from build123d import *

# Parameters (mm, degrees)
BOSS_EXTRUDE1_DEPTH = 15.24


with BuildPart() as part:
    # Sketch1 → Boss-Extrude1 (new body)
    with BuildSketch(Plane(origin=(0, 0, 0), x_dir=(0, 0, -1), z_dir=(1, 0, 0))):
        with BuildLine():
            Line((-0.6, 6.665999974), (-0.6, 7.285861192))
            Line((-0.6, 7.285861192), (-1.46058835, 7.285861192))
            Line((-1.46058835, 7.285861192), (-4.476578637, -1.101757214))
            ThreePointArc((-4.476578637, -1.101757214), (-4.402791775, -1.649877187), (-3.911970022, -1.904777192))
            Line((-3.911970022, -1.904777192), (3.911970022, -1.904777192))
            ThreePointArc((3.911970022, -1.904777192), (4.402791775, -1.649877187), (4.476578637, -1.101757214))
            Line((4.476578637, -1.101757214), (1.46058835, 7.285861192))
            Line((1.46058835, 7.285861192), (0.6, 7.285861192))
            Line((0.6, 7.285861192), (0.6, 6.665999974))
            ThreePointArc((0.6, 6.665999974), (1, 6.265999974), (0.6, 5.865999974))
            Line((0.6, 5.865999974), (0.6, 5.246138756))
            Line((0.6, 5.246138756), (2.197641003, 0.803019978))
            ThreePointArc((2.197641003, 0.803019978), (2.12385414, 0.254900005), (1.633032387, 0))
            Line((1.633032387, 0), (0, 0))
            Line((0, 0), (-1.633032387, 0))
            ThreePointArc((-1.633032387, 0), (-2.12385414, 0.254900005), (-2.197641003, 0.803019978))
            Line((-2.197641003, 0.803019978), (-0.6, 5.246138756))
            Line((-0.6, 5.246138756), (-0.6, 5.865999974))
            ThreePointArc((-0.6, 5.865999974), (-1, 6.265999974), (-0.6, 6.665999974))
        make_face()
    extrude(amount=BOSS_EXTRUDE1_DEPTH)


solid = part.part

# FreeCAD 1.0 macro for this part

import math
import FreeCAD as App
import Part
import Sketcher
from FreeCAD import Vector

doc = App.newDocument("Part")
body = doc.addObject("PartDesign::Body", "Body")

sketch1 = body.newObject("Sketcher::SketchObject", "Sketch")
sketch1.AttachmentSupport = (doc.getObject("YZ_Plane"), [""])
sketch1.MapMode = "FlatFace"
sketch1.addGeometry(Part.LineSegment(Vector(6.67, 0.6, 0), Vector(7.29, 0.6, 0)), False)
sketch1.addGeometry(Part.LineSegment(Vector(7.29, 0.6, 0), Vector(7.29, 1.46, 0)), False)
sketch1.addGeometry(Part.LineSegment(Vector(7.29, 1.46, 0), Vector(-1.1, 4.48, 0)), False)
sketch1.addGeometry(Part.ArcOfCircle(Part.Circle(Vector(-1.3, 3.91, 0), Vector(0, 0, 1), 0.6), math.radians(70), math.radians(180)), False)
sketch1.addGeometry(Part.LineSegment(Vector(-1.9, 3.91, 0), Vector(-1.9, -3.91, 0)), False)
sketch1.addGeometry(Part.ArcOfCircle(Part.Circle(Vector(-1.3, -3.91, 0), Vector(0, 0, 1), 0.6), math.radians(180), math.radians(290)), False)
sketch1.addGeometry(Part.LineSegment(Vector(-1.1, -4.48, 0), Vector(7.29, -1.46, 0)), False)
sketch1.addGeometry(Part.LineSegment(Vector(7.29, -1.46, 0), Vector(7.29, -0.6, 0)), False)
sketch1.addGeometry(Part.LineSegment(Vector(7.29, -0.6, 0), Vector(6.67, -0.6, 0)), False)
sketch1.addGeometry(Part.ArcOfCircle(Part.Circle(Vector(6.27, -0.6, 0), Vector(0, 0, 1), 0.4), math.radians(180), math.radians(360)), False)
sketch1.addGeometry(Part.LineSegment(Vector(5.87, -0.6, 0), Vector(5.25, -0.6, 0)), False)
sketch1.addGeometry(Part.LineSegment(Vector(5.25, -0.6, 0), Vector(0.8, -2.2, 0)), False)
sketch1.addGeometry(Part.ArcOfCircle(Part.Circle(Vector(0.6, -1.63, 0), Vector(0, 0, 1), 0.6), math.radians(-180), math.radians(-70)), False)
sketch1.addGeometry(Part.LineSegment(Vector(0, -1.63, 0), Vector(0, 1.63, 0)), False)
sketch1.addGeometry(Part.ArcOfCircle(Part.Circle(Vector(0.6, 1.63, 0), Vector(0, 0, 1), 0.6), math.radians(70), math.radians(180)), False)
sketch1.addGeometry(Part.LineSegment(Vector(0.8, 2.2, 0), Vector(5.25, 0.6, 0)), False)
sketch1.addGeometry(Part.LineSegment(Vector(5.25, 0.6, 0), Vector(5.87, 0.6, 0)), False)
sketch1.addGeometry(Part.ArcOfCircle(Part.Circle(Vector(6.27, 0.6, 0), Vector(0, 0, 1), 0.4), math.radians(0), math.radians(180)), False)
sketch1.addConstraint(Sketcher.Constraint("Coincident", 0, 2, 1, 1))
sketch1.addConstraint(Sketcher.Constraint("Coincident", 1, 2, 2, 1))
sketch1.addConstraint(Sketcher.Constraint("Tangent", 2, 2, 3, 1))
sketch1.addConstraint(Sketcher.Constraint("Tangent", 3, 2, 4, 1))
sketch1.addConstraint(Sketcher.Constraint("Tangent", 4, 2, 5, 1))
sketch1.addConstraint(Sketcher.Constraint("Tangent", 5, 2, 6, 1))
sketch1.addConstraint(Sketcher.Constraint("Coincident", 6, 2, 7, 1))
sketch1.addConstraint(Sketcher.Constraint("Coincident", 7, 2, 8, 1))
sketch1.addConstraint(Sketcher.Constraint("Coincident", 8, 2, 9, 2))
sketch1.addConstraint(Sketcher.Constraint("Coincident", 9, 1, 10, 1))
sketch1.addConstraint(Sketcher.Constraint("Coincident", 10, 2, 11, 1))
sketch1.addConstraint(Sketcher.Constraint("Tangent", 11, 2, 12, 2))
sketch1.addConstraint(Sketcher.Constraint("Tangent", 12, 1, 13, 1))
sketch1.addConstraint(Sketcher.Constraint("Tangent", 13, 2, 14, 2))
sketch1.addConstraint(Sketcher.Constraint("Tangent", 14, 1, 15, 1))
sketch1.addConstraint(Sketcher.Constraint("Coincident", 15, 2, 16, 1))
sketch1.addConstraint(Sketcher.Constraint("Coincident", 16, 2, 17, 2))
sketch1.addConstraint(Sketcher.Constraint("Coincident", 17, 1, 0, 1))
sketch1.addConstraint(Sketcher.Constraint("Horizontal", 0))
sketch1.addConstraint(Sketcher.Constraint("Vertical", 1))
sketch1.addConstraint(Sketcher.Constraint("Vertical", 4))
sketch1.addConstraint(Sketcher.Constraint("Vertical", 7))
sketch1.addConstraint(Sketcher.Constraint("Horizontal", 8))
sketch1.addConstraint(Sketcher.Constraint("Horizontal", 10))
sketch1.addConstraint(Sketcher.Constraint("Vertical", 13))
sketch1.addConstraint(Sketcher.Constraint("Horizontal", 16))
sketch1.addConstraint(Sketcher.Constraint("Equal", 3, 5))
sketch1.addConstraint(Sketcher.Constraint("Equal", 5, 12))
sketch1.addConstraint(Sketcher.Constraint("Equal", 12, 14))
sketch1.addConstraint(Sketcher.Constraint("Equal", 9, 17))
sketch1.addConstraint(Sketcher.Constraint("Symmetric", 12, 1, 13, 2, -1, 1))
sketch1.addConstraint(Sketcher.Constraint("Symmetric", 9, 3, 17, 3, -1))
sketch1.addConstraint(Sketcher.Constraint("Symmetric", 2, 2, 5, 2, -1))
sketch1.addConstraint(Sketcher.Constraint("Symmetric", 0, 2, 7, 2, -1))
sketch1.addConstraint(Sketcher.Constraint("Symmetric", 10, 2, 15, 2, -1))
sketch1.addConstraint(Sketcher.Constraint("Parallel", 6, 11))
sketch1.addConstraint(Sketcher.Constraint("Horizontal", 17, 3, 0, 2))
sketch1.addConstraint(Sketcher.Constraint("Horizontal", 8, 2, 9, 1))
sketch1.addConstraint(Sketcher.Constraint("Equal", 8, 10))
sketch1.addConstraint(Sketcher.Constraint("Radius", 3, 0.6))
sketch1.addConstraint(Sketcher.Constraint("Radius", 9, 0.4))
sketch1.addConstraint(Sketcher.Constraint("DistanceY", 9, 3, -1, 1, 0.6))
sketch1.addConstraint(Sketcher.Constraint("DistanceX", -1, 1, 9, 3, 6.266))
sketch1.addConstraint(Sketcher.Constraint("DistanceX", 0, 1, 0, 2, 0.619861))
sketch1.addConstraint(Sketcher.Constraint("DistanceY", 1, 1, 1, 2, 0.860588))
sketch1.addConstraint(Sketcher.Constraint("DistanceY", 4, 2, 4, 1, 7.82394))
sketch1.addConstraint(Sketcher.Constraint("Distance", 2, 8.91338))
pad1 = body.newObject("PartDesign::Pad", "Pad")
pad1.Profile = sketch1
pad1.Length = 15.24

doc.recompute()
